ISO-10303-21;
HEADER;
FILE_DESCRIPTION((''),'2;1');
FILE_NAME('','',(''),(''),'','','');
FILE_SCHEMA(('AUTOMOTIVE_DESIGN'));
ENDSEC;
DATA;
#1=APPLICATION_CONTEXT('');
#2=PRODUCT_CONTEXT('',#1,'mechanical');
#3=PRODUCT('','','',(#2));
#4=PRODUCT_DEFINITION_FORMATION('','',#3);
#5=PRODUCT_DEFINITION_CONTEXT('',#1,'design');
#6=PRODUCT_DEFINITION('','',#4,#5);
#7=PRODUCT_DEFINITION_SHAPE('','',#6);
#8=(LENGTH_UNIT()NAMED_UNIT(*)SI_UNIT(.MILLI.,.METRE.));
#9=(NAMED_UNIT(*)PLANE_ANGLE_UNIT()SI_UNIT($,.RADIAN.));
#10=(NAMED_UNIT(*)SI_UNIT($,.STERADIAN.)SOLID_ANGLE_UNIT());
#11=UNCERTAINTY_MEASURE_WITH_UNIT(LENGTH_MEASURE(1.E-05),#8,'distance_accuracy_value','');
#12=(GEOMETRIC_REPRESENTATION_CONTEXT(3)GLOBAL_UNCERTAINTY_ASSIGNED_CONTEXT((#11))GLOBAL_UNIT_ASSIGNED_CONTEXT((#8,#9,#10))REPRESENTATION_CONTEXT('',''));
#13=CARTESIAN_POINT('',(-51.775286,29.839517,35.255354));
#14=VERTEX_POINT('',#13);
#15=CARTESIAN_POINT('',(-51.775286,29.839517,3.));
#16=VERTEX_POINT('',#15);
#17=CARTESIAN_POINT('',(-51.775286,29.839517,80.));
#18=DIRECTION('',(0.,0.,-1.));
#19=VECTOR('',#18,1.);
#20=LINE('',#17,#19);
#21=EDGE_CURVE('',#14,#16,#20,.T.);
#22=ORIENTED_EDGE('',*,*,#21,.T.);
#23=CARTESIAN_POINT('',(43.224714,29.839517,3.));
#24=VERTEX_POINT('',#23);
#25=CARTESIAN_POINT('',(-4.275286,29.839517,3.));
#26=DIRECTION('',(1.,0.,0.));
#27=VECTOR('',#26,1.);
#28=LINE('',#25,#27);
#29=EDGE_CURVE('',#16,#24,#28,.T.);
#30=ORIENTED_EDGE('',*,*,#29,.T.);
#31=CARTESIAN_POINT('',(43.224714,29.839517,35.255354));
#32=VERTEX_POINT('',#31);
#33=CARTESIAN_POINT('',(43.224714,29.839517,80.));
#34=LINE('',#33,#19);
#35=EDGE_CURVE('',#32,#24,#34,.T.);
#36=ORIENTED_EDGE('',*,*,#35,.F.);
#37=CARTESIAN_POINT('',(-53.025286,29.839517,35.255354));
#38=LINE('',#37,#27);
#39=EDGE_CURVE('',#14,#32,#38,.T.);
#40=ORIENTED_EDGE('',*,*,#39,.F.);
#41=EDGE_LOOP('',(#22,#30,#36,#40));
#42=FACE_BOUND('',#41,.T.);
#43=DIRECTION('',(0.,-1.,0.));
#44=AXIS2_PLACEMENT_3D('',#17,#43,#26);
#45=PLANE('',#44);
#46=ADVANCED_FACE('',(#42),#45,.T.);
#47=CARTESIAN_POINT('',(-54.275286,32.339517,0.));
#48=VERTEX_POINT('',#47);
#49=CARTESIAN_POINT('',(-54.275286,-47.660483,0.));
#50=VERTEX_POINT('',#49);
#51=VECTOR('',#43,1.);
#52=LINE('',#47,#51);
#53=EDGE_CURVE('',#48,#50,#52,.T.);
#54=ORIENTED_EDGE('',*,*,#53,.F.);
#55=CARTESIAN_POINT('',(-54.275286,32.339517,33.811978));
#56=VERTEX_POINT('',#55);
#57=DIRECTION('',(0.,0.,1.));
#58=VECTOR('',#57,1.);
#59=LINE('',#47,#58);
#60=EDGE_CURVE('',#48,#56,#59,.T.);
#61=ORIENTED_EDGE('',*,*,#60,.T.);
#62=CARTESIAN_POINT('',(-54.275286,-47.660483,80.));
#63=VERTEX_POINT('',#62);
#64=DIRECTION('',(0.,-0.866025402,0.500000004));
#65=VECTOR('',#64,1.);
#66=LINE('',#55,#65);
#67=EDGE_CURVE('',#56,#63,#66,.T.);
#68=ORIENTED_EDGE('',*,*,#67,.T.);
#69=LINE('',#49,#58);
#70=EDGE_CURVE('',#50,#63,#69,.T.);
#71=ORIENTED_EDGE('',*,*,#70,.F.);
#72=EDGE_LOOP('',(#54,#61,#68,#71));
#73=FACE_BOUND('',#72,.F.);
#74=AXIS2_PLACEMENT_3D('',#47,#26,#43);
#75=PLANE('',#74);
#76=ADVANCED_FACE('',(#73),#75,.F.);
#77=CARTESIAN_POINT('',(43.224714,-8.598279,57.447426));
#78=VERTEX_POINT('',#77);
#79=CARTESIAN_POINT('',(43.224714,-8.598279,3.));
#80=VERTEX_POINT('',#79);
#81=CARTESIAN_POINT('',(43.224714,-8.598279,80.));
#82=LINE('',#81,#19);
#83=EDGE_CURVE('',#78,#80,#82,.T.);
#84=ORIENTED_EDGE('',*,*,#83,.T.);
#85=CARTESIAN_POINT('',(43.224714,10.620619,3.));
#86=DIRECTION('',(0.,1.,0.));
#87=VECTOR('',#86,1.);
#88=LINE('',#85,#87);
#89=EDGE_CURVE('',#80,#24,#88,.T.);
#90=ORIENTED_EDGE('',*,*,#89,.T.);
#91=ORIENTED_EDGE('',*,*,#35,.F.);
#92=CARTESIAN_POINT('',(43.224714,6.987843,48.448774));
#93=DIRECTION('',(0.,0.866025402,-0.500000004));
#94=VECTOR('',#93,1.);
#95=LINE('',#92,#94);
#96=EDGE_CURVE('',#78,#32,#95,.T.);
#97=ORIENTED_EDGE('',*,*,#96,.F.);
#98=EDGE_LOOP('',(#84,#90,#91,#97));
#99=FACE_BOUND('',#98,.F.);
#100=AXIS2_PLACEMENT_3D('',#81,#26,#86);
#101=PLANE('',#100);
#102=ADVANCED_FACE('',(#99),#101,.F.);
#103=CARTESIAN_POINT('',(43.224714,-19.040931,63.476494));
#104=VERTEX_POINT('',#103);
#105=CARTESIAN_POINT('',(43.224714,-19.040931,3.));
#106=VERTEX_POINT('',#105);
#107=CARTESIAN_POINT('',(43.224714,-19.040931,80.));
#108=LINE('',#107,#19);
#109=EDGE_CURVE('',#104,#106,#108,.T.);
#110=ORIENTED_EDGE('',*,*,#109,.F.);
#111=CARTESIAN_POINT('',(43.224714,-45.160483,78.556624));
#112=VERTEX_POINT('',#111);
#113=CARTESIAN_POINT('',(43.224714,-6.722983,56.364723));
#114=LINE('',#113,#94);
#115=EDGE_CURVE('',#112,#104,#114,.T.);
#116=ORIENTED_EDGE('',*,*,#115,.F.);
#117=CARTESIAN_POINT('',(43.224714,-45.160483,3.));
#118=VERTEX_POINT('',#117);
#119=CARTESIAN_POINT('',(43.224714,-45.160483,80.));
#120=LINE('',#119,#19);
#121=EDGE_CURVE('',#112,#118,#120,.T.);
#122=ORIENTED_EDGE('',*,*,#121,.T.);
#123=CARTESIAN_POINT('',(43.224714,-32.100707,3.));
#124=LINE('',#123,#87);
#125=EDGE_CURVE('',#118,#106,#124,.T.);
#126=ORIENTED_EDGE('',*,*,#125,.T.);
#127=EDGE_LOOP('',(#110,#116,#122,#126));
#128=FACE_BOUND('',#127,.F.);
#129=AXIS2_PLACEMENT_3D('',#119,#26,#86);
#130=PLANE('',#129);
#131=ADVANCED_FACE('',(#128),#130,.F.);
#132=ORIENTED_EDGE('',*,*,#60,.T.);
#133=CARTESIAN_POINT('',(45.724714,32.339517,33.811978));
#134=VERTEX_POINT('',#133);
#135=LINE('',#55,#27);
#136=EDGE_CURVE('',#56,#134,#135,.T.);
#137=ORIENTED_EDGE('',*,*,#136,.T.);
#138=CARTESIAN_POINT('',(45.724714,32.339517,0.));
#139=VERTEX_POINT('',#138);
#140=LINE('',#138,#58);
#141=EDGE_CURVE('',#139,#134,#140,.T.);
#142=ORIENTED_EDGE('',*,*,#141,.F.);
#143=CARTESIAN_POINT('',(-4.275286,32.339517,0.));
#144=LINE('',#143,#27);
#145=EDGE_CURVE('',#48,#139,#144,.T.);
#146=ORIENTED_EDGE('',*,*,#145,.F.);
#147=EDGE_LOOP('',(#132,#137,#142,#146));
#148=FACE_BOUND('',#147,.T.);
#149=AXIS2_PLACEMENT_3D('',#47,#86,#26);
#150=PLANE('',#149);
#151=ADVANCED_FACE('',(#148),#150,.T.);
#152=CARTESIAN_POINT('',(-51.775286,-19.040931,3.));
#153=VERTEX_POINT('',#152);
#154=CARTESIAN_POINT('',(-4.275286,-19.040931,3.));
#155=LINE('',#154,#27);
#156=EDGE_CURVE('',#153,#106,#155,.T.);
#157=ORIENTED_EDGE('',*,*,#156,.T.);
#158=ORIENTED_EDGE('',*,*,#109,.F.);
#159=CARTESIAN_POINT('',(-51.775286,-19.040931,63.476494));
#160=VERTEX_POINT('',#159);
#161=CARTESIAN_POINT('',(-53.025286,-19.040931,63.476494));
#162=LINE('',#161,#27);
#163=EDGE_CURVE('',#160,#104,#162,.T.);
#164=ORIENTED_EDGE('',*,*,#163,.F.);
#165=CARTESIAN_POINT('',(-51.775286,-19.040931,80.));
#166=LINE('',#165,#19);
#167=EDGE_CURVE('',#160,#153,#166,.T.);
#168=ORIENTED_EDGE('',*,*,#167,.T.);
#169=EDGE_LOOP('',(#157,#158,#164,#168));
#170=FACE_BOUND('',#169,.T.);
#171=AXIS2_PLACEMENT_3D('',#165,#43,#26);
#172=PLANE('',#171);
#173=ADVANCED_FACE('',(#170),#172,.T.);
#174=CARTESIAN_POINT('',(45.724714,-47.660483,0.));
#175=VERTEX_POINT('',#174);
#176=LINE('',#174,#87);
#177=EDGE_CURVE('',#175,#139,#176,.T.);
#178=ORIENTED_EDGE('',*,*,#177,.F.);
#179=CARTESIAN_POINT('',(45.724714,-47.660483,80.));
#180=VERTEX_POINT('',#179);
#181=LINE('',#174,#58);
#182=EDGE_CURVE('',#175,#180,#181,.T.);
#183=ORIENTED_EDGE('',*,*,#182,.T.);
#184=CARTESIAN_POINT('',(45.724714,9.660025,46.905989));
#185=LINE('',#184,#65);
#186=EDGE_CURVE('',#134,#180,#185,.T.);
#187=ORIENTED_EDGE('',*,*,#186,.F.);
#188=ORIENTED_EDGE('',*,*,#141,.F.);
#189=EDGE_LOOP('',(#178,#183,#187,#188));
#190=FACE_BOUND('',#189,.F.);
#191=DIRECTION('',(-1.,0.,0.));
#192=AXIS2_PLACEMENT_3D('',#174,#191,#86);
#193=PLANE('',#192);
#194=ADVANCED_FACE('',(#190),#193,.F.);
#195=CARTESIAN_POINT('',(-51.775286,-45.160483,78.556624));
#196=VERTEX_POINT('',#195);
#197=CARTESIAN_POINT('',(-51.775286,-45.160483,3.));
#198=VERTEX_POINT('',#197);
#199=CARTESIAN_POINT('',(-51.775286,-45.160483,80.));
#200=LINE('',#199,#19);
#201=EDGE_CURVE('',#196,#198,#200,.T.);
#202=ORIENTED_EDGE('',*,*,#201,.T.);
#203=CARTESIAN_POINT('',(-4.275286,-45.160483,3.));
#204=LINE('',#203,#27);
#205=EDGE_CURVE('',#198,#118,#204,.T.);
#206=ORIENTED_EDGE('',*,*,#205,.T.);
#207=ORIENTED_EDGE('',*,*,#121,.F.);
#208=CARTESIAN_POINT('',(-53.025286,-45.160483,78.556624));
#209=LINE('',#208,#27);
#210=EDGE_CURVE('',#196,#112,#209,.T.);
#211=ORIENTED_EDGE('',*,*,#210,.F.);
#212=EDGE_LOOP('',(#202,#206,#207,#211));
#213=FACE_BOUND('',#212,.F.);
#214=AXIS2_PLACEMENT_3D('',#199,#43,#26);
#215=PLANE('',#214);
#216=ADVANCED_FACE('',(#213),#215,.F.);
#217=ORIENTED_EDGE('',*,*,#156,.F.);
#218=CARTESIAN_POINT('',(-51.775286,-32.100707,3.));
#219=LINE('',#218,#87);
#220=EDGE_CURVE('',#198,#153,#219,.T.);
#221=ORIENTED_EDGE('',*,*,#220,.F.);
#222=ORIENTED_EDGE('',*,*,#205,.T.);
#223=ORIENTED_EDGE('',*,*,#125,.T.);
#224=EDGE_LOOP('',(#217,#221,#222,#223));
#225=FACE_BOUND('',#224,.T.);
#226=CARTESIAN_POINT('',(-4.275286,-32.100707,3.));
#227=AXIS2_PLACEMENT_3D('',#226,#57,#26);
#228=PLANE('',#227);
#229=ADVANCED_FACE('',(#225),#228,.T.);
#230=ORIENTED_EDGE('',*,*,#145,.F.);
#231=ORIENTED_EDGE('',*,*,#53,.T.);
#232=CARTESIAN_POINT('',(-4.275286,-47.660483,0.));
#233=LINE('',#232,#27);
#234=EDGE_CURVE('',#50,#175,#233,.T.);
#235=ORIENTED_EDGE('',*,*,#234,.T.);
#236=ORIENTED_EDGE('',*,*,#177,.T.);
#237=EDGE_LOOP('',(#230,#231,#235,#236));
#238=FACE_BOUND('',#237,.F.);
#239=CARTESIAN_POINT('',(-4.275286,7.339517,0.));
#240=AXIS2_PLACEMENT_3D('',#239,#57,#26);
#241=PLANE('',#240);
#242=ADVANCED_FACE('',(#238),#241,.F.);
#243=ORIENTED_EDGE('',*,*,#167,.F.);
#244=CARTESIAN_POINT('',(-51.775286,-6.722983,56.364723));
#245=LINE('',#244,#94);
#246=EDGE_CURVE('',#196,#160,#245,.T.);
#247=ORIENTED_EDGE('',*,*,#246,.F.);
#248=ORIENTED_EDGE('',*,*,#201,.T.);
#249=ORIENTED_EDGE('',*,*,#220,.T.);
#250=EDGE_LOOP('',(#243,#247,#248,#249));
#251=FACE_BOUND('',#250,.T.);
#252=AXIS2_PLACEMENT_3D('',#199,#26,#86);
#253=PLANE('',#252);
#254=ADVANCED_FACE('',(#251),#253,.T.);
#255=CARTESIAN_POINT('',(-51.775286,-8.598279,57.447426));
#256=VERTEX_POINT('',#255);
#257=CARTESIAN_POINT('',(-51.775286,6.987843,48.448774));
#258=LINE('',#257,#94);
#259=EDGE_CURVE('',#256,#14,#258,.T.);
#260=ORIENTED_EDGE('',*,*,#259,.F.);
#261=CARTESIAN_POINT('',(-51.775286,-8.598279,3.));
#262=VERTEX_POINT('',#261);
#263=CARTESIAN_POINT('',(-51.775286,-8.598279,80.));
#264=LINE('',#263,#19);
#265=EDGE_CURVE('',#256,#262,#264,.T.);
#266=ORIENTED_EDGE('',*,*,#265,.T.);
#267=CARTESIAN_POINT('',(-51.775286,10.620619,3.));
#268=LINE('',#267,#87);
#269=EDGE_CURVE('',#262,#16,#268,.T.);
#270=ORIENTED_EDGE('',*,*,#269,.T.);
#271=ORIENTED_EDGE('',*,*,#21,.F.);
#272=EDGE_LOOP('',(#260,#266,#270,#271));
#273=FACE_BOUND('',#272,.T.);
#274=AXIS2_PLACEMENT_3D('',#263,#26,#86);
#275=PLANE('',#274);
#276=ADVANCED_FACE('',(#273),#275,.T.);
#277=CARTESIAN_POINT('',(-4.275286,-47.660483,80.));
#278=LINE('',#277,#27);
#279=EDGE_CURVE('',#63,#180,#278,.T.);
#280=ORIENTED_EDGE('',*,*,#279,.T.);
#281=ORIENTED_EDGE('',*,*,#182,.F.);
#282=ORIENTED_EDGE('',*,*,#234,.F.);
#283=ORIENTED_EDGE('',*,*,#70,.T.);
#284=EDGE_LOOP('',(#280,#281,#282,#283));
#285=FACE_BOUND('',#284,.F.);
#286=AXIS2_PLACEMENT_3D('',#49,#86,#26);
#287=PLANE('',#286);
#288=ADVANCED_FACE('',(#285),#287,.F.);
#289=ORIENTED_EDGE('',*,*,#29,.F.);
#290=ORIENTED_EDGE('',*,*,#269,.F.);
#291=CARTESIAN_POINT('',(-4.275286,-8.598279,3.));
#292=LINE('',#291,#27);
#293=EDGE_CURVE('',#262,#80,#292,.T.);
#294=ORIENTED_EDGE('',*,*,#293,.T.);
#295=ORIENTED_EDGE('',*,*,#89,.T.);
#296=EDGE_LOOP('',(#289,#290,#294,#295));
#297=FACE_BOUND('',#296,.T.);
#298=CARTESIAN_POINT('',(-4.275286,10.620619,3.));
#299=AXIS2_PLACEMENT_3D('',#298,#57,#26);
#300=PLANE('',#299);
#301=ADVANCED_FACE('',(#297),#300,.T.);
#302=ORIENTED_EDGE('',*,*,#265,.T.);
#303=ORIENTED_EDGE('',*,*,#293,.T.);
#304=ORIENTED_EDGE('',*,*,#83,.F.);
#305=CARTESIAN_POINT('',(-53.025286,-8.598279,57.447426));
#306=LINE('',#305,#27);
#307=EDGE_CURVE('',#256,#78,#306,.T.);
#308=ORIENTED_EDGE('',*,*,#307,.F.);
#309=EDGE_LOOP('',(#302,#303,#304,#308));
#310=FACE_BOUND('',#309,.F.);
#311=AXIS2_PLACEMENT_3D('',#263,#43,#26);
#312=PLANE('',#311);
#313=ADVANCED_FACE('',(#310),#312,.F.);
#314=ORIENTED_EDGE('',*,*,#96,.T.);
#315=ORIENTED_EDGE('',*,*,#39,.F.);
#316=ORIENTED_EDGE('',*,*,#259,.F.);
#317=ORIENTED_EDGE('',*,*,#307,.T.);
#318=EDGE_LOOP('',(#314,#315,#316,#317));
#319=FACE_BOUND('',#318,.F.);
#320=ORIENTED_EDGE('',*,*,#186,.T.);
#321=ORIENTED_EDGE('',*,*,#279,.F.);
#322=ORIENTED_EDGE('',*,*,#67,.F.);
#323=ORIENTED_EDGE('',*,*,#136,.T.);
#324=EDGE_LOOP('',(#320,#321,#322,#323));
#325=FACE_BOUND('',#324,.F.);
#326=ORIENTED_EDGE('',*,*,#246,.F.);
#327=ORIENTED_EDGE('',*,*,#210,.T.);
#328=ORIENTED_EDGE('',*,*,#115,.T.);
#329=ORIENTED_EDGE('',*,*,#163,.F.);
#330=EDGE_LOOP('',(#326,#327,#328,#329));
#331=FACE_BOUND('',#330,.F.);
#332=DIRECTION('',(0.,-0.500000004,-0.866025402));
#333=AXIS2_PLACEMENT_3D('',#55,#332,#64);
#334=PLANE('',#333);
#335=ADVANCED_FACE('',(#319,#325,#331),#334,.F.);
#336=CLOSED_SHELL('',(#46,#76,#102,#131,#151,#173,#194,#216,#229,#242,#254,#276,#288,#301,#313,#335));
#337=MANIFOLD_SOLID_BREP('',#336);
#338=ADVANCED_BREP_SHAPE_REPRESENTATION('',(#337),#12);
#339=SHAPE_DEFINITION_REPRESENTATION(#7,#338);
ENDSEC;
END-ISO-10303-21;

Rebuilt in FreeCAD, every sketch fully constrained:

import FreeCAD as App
import Part
import Sketcher
Q = App.Units.Quantity


def add_polygon(sketch, points):
    """Adds a closed chain of lines whose ends are joined by coincident constraints."""
    first, n = sketch.GeometryCount, len(points)
    for a, b in zip(points, points[1:] + points[:1]):
        sketch.addGeometry(Part.LineSegment(App.Vector(*a, 0), App.Vector(*b, 0)), False)
    for i in range(n):
        sketch.addConstraint(Sketcher.Constraint("Coincident", first + i, 2, first + (i + 1) % n, 1))

doc = App.newDocument("Part")
body = doc.addObject("PartDesign::Body", "Body")

# Sketch on XY plane
sketch1 = doc.addObject("Sketcher::SketchObject", "Sketch")
body.addObject(sketch1)
sketch1.AttachmentSupport = (doc.XY_Plane, [""])
sketch1.MapMode = "FlatFace"
add_polygon(sketch1, [(-54, 32), (-54, -48), (46, -48), (46, 32)])  # lines 0-3
sketch1.addConstraint(Sketcher.Constraint("Vertical", 0))
sketch1.addConstraint(Sketcher.Constraint("Horizontal", 1))
sketch1.addConstraint(Sketcher.Constraint("Vertical", 2))
sketch1.addConstraint(Sketcher.Constraint("Horizontal", 3))
sketch1.addConstraint(Sketcher.Constraint("DistanceX", 1, 1, 1, 2, Q("100 mm")))
sketch1.addConstraint(Sketcher.Constraint("DistanceY", 0, 2, 0, 1, Q("80 mm")))
sketch1.addConstraint(Sketcher.Constraint("DistanceX", 0, 2, -1, 1, Q("54.275286 mm")))
sketch1.addConstraint(Sketcher.Constraint("DistanceY", 0, 2, -1, 1, Q("47.660483 mm")))
pad1 = doc.addObject("PartDesign::Pad", "Pad")
body.addObject(pad1)
pad1.Profile = sketch1
pad1.Length = 80

# Sketch on XY plane
sketch2 = doc.addObject("Sketcher::SketchObject", "Sketch001")
body.addObject(sketch2)
sketch2.AttachmentSupport = (doc.XY_Plane, [""])
sketch2.MapMode = "FlatFace"
sketch2.AttachmentOffset = App.Placement(App.Vector(0, 0, 80), App.Rotation())
add_polygon(sketch2, [(-52, 30), (-52, -9), (43, -9), (43, 30)])  # lines 0-3
add_polygon(sketch2, [(-52, -19), (-52, -45), (43, -45), (43, -19)])  # lines 4-7
sketch2.addConstraint(Sketcher.Constraint("Vertical", 0))
sketch2.addConstraint(Sketcher.Constraint("Horizontal", 1))
sketch2.addConstraint(Sketcher.Constraint("Vertical", 2))
sketch2.addConstraint(Sketcher.Constraint("Horizontal", 3))
sketch2.addConstraint(Sketcher.Constraint("Vertical", 4))
sketch2.addConstraint(Sketcher.Constraint("Horizontal", 5))
sketch2.addConstraint(Sketcher.Constraint("Vertical", 6))
sketch2.addConstraint(Sketcher.Constraint("Horizontal", 7))
sketch2.addConstraint(Sketcher.Constraint("Vertical", 3, 2, 4, 2))
sketch2.addConstraint(Sketcher.Constraint("Vertical", 2, 2, 5, 2))
sketch2.addConstraint(Sketcher.Constraint("DistanceX", 1, 1, 1, 2, Q("95 mm")))
sketch2.addConstraint(Sketcher.Constraint("DistanceY", 4, 2, 3, 2, Q("75 mm")))
sketch2.addConstraint(Sketcher.Constraint("DistanceY", 4, 2, 4, 1, Q("26.119551 mm")))
sketch2.addConstraint(Sketcher.Constraint("DistanceY", 0, 2, 0, 1, Q("38.437796 mm")))
sketch2.addConstraint(Sketcher.Constraint("DistanceY", 0, 2, -1, 1, Q("8.598279 mm")))
sketch2.addConstraint(Sketcher.Constraint("DistanceX", 0, 2, -1, 1, Q("51.775286 mm")))
pocket1 = doc.addObject("PartDesign::Pocket", "Pocket")
body.addObject(pocket1)
pocket1.Profile = sketch2
pocket1.Length = 77

# Sketch on YZ plane
sketch3 = doc.addObject("Sketcher::SketchObject", "Sketch002")
body.addObject(sketch3)
sketch3.AttachmentSupport = (doc.YZ_Plane, [""])
sketch3.MapMode = "FlatFace"
sketch3.AttachmentOffset = App.Placement(App.Vector(0, 0, -54.275286), App.Rotation())
add_polygon(sketch3, [(32, 34), (-48, 80), (32, 80)])  # lines 0-2
sketch3.addConstraint(Sketcher.Constraint("Horizontal", 1))
sketch3.addConstraint(Sketcher.Constraint("Vertical", 2))
sketch3.addConstraint(Sketcher.Constraint("DistanceX", 1, 1, 1, 2, Q("80 mm")))
sketch3.addConstraint(Sketcher.Constraint("Angle", 0, Q("150 deg")))
sketch3.addConstraint(Sketcher.Constraint("DistanceY", -1, 1, 0, 2, Q("80 mm")))
sketch3.addConstraint(Sketcher.Constraint("DistanceX", 0, 2, -1, 1, Q("47.660483 mm")))
pocket2 = doc.addObject("PartDesign::Pocket", "Pocket001")
body.addObject(pocket2)
pocket2.Profile = sketch3
pocket2.Length = 250
pocket2.Reversed = True

doc.recompute()
